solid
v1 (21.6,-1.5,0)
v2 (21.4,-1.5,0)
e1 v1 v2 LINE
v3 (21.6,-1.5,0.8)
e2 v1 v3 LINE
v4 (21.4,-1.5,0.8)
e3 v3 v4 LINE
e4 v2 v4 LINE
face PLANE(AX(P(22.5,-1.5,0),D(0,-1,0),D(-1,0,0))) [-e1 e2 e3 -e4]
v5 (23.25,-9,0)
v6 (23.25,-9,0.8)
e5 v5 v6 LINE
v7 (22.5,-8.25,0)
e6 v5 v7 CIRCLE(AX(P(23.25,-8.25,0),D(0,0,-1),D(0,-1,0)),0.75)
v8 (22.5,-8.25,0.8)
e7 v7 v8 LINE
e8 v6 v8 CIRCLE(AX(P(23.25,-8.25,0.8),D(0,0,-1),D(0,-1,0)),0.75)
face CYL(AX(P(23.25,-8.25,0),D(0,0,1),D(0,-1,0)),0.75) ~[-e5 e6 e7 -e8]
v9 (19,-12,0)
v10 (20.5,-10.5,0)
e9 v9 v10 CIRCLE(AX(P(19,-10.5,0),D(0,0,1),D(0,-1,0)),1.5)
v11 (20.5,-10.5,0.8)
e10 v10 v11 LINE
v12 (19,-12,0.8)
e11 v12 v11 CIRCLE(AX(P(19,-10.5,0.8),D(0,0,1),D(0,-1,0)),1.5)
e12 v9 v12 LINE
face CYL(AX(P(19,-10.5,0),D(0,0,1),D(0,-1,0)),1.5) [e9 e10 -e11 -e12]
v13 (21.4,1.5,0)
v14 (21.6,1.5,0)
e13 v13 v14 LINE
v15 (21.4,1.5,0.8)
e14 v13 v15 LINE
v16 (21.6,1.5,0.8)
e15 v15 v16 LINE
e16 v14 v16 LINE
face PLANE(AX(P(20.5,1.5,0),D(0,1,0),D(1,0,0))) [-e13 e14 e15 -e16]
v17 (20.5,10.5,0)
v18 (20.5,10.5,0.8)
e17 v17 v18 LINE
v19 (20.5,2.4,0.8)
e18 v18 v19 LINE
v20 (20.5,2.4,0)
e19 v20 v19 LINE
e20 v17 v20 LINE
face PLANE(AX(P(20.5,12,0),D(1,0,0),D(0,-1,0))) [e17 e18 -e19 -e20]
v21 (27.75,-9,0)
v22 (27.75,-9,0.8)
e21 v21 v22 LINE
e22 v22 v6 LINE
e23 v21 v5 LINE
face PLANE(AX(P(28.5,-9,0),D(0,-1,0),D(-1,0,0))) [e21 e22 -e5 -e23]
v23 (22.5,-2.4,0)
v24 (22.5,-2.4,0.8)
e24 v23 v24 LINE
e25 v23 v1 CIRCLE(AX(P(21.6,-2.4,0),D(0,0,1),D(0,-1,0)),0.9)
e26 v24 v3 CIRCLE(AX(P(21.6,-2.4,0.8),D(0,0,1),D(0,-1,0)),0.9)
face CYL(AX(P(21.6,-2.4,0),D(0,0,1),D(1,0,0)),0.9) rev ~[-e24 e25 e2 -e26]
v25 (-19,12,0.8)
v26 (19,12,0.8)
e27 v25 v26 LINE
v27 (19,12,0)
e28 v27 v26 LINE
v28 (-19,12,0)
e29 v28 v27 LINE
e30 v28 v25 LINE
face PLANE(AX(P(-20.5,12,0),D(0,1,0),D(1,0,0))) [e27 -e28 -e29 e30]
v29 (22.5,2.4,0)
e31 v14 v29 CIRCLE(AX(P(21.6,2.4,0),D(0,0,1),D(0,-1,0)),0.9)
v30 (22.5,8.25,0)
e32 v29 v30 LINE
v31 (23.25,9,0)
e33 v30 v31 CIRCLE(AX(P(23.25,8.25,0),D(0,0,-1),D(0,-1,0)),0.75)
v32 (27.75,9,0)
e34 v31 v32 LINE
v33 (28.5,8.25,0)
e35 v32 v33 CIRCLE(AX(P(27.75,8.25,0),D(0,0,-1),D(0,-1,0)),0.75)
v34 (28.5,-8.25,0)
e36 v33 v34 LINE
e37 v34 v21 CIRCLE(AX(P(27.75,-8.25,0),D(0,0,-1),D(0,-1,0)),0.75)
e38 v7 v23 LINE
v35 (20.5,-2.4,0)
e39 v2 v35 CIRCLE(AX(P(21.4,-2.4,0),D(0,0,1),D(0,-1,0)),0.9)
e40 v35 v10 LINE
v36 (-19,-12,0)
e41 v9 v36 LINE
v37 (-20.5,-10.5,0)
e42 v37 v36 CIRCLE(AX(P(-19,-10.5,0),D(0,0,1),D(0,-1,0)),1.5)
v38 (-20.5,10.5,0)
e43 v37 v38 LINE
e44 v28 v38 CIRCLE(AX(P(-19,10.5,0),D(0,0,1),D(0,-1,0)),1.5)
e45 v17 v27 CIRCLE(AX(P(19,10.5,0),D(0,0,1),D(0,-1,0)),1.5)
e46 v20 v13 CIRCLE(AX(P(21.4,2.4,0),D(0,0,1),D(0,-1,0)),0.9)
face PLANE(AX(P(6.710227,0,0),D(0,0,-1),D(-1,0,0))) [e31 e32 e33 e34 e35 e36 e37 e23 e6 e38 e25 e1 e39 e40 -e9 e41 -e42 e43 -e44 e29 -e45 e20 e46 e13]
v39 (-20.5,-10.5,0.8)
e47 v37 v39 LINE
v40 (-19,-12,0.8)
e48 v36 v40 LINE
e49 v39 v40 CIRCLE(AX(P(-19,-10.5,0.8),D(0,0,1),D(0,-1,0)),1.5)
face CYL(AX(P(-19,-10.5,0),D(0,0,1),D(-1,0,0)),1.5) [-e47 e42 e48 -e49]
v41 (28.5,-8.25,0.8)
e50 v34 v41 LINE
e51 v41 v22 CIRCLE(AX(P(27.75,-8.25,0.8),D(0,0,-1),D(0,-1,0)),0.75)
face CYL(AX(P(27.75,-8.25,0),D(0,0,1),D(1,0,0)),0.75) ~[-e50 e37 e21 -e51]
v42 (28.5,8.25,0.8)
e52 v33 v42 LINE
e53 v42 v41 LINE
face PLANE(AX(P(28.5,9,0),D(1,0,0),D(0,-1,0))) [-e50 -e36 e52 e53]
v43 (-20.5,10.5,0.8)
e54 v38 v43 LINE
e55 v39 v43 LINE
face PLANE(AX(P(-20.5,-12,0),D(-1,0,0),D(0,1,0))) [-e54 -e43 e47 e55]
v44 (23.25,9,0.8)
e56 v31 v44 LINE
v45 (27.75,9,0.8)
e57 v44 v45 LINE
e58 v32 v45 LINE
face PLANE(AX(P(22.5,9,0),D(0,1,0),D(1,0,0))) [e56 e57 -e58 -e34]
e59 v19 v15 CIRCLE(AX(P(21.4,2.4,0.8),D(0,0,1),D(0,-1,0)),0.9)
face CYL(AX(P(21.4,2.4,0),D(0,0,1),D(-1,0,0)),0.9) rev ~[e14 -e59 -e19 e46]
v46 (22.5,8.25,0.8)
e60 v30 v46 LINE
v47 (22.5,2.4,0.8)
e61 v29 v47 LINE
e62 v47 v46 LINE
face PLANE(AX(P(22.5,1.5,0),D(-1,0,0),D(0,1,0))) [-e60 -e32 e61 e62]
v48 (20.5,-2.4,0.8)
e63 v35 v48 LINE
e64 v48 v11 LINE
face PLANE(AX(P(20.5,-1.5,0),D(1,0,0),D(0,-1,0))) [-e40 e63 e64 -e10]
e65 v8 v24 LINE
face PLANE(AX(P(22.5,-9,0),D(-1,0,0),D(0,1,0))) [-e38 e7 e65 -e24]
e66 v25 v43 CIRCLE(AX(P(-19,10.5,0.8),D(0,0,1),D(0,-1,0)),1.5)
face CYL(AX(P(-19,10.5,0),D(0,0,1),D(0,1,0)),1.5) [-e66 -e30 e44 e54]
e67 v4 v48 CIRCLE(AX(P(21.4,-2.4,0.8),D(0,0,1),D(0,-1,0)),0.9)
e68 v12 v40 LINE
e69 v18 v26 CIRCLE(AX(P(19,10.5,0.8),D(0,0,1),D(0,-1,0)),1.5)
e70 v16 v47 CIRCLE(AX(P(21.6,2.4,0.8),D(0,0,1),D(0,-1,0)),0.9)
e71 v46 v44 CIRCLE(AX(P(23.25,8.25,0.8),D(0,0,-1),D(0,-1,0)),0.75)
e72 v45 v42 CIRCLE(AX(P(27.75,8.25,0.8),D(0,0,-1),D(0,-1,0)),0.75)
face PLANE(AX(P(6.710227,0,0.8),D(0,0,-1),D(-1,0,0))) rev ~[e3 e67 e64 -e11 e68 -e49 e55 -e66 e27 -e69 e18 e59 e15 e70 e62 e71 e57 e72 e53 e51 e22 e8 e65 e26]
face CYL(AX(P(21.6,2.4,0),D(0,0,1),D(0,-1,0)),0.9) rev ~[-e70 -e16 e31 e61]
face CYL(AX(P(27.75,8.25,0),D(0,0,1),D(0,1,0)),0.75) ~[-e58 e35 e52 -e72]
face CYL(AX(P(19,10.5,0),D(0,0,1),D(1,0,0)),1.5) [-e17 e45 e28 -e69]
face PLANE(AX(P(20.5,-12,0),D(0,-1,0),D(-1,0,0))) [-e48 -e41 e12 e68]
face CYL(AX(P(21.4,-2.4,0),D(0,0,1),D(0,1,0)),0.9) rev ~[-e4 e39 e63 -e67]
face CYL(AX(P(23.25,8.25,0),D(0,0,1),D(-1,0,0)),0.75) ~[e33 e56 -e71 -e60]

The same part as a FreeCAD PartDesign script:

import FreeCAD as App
import Part
import Sketcher


def edges_at(feature, points):
    """Names of the edges that pass closest to the given points."""
    edges = feature.Shape.Edges
    near = lambda p: min(range(len(edges)), key=lambda i: edges[i].distToShape(Part.Vertex(*p))[0])
    return sorted({f"Edge{near(p) + 1}" for p in points})


def add_polygon(sketch, points):
    """Adds a closed chain of lines whose ends are joined by coincident constraints."""
    first, n = sketch.GeometryCount, len(points)
    for a, b in zip(points, points[1:] + points[:1]):
        sketch.addGeometry(Part.LineSegment(App.Vector(*a, 0), App.Vector(*b, 0)), False)
    for i in range(n):
        sketch.addConstraint(Sketcher.Constraint("Coincident", first + i, 2, first + (i + 1) % n, 1))

doc = App.newDocument("Part")
params = doc.addObject("Spreadsheet::Sheet", "Params")
for row, (alias, value) in enumerate([
    ("sketch1_width", "41 mm"),
    ("sketch1_width2", "2 mm"),
    ("sketch1_width3", "6 mm"),
    ("sketch1_height", "24 mm"),
    ("sketch1_height2", "18 mm"),
    ("pad1_length", "0.8 mm"),
    ("fillet_radius", "0.9 mm"),
    ("fillet2_radius", "0.75 mm"),
    ("fillet3_radius", "1.5 mm"),
], start=1):
    params.set(f"A{row}", alias)
    params.set(f"B{row}", "=" + value)
    params.setAlias(f"B{row}", alias)

body = doc.addObject("PartDesign::Body", "Body")

# Sketch on XY plane
sketch1 = doc.addObject("Sketcher::SketchObject", "Sketch")
body.addObject(sketch1)
sketch1.AttachmentSupport = (doc.XY_Plane, [""])
sketch1.MapMode = "FlatFace"
add_polygon(sketch1, [(20.5, 12), (-20.5, 12), (-20.5, -12), (20.5, -12), (20.5, -1.5), (22.5, -1.5), (22.5, -9), (28.5, -9), (28.5, 9), (22.5, 9), (22.5, 1.5), (20.5, 1.5)])  # lines 0-11
sketch1.addConstraint([
    Sketcher.Constraint("Horizontal", 0),
    Sketcher.Constraint("Vertical", 1),
    Sketcher.Constraint("Horizontal", 2),
    Sketcher.Constraint("Vertical", 3),
    Sketcher.Constraint("Horizontal", 4),
    Sketcher.Constraint("Vertical", 5),
    Sketcher.Constraint("Horizontal", 6),
    Sketcher.Constraint("Vertical", 7),
    Sketcher.Constraint("Horizontal", 8),
    Sketcher.Constraint("Vertical", 9),
    Sketcher.Constraint("Horizontal", 10),
    Sketcher.Constraint("Vertical", 11),
    Sketcher.Constraint("Symmetric", 0, 2, 2, 2, -1, 1),
    Sketcher.Constraint("Symmetric", 5, 2, 8, 2, -1),
    Sketcher.Constraint("Symmetric", 3, 2, 10, 2, -1),
    Sketcher.Constraint("DistanceX", 0, 2, 0, 1, 41.0),
    Sketcher.Constraint("DistanceX", 4, 1, 4, 2, 2.0),
    Sketcher.Constraint("DistanceX", 6, 1, 6, 2, 6.0),
    Sketcher.Constraint("DistanceY", 1, 2, 1, 1, 24.0),
    Sketcher.Constraint("DistanceY", 7, 1, 7, 2, 18.0),
    Sketcher.Constraint("DistanceY", 3, 1, 3, 2, 10.5),
])
sketch1.setExpression("Constraints[27]", "Params.sketch1_width")
sketch1.setExpression("Constraints[28]", "Params.sketch1_width2")
sketch1.setExpression("Constraints[29]", "Params.sketch1_width3")
sketch1.setExpression("Constraints[30]", "Params.sketch1_height")
sketch1.setExpression("Constraints[31]", "Params.sketch1_height2")
pad1 = doc.addObject("PartDesign::Pad", "Pad")
body.addObject(pad1)
pad1.Profile = sketch1
pad1.setExpression("Length", "Params.pad1_length")
doc.recompute()

fillet = doc.addObject("PartDesign::Fillet", "Fillet")
body.addObject(fillet)
fillet.Base = (pad1, edges_at(pad1, [
    (22.5, -1.5, 0.4),
    (22.5, 1.5, 0.4),
    (20.5, 1.5, 0.4),
    (20.5, -1.5, 0.4),
]))
fillet.setExpression("Radius", "Params.fillet_radius")
doc.recompute()

fillet2 = doc.addObject("PartDesign::Fillet", "Fillet001")
body.addObject(fillet2)
fillet2.Base = (fillet, edges_at(fillet, [
    (22.5, -9, 0.4),
    (28.5, -9, 0.4),
    (28.5, 9, 0.4),
    (22.5, 9, 0.4),
]))
fillet2.setExpression("Radius", "Params.fillet2_radius")
doc.recompute()

fillet3 = doc.addObject("PartDesign::Fillet", "Fillet002")
body.addObject(fillet3)
fillet3.Base = (fillet2, edges_at(fillet2, [
    (20.5, -12, 0.4),
    (-20.5, -12, 0.4),
    (-20.5, 12, 0.4),
    (20.5, 12, 0.4),
]))
fillet3.setExpression("Radius", "Params.fillet3_radius")

doc.recompute()
